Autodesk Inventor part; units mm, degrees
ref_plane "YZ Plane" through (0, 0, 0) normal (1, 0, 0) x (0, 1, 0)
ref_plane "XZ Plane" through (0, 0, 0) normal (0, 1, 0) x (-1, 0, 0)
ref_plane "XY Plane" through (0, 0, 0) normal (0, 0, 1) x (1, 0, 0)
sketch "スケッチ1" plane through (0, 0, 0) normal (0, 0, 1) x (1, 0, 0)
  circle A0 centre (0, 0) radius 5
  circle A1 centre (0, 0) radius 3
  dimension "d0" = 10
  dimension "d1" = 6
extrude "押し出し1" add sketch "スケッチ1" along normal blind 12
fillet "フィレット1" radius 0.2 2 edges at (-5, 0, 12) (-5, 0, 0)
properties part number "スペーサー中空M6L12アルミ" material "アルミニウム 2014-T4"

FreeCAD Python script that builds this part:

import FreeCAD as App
import Part
import Sketcher

V = App.Vector
Q = App.Units.Quantity


def edges_at(feature, points):
    """Names of the edges that pass closest to the given points."""
    edges = feature.Shape.Edges
    near = lambda p: min(range(len(edges)), key=lambda i: edges[i].distToShape(Part.Vertex(*p))[0])
    return sorted({f"Edge{near(p) + 1}" for p in points})

doc = App.newDocument("Part")
params = doc.addObject("Spreadsheet::Sheet", "Params")
for row, (alias, value) in enumerate([
    ("sketch1_diameter", "10 mm"),
    ("sketch1_diameter2", "6 mm"),
    ("pad1_length", "12 mm"),
    ("fillet_radius", "0.2 mm"),
], start=1):
    params.set(f"A{row}", alias)
    params.set(f"B{row}", "=" + value)
    params.setAlias(f"B{row}", alias)

body = doc.addObject("PartDesign::Body", "Body")

# Sketch on XY plane
sketch1 = body.newObject("Sketcher::SketchObject", "Sketch")
sketch1.AttachmentSupport = (doc.getObject("XY_Plane"), [""])
sketch1.MapMode = "FlatFace"
sketch1.addGeometry([
    Part.Circle(V(0, 0, 0), V(0, 0, 1), 5),
    Part.Circle(V(0, 0, 0), V(0, 0, 1), 3),
], False)
sketch1.addConstraint([
    Sketcher.Constraint("Coincident", 0, 3, -1, 1),
    Sketcher.Constraint("Coincident", 1, 3, -1, 1),
    Sketcher.Constraint("Diameter", 0, Q("10 mm")),
    Sketcher.Constraint("Diameter", 1, Q("6 mm")),
])
sketch1.setExpression("Constraints[2]", "Params.sketch1_diameter")
sketch1.setExpression("Constraints[3]", "Params.sketch1_diameter2")
pad1 = body.newObject("PartDesign::Pad", "Pad")
pad1.Profile = sketch1
pad1.setExpression("Length", "Params.pad1_length")
doc.recompute()

fillet = body.newObject("PartDesign::Fillet", "Fillet")
fillet.Base = (pad1, edges_at(pad1, [(-5, 0, 12), (-5, 0, 0)]))
fillet.setExpression("Radius", "Params.fillet_radius")

doc.recompute()
